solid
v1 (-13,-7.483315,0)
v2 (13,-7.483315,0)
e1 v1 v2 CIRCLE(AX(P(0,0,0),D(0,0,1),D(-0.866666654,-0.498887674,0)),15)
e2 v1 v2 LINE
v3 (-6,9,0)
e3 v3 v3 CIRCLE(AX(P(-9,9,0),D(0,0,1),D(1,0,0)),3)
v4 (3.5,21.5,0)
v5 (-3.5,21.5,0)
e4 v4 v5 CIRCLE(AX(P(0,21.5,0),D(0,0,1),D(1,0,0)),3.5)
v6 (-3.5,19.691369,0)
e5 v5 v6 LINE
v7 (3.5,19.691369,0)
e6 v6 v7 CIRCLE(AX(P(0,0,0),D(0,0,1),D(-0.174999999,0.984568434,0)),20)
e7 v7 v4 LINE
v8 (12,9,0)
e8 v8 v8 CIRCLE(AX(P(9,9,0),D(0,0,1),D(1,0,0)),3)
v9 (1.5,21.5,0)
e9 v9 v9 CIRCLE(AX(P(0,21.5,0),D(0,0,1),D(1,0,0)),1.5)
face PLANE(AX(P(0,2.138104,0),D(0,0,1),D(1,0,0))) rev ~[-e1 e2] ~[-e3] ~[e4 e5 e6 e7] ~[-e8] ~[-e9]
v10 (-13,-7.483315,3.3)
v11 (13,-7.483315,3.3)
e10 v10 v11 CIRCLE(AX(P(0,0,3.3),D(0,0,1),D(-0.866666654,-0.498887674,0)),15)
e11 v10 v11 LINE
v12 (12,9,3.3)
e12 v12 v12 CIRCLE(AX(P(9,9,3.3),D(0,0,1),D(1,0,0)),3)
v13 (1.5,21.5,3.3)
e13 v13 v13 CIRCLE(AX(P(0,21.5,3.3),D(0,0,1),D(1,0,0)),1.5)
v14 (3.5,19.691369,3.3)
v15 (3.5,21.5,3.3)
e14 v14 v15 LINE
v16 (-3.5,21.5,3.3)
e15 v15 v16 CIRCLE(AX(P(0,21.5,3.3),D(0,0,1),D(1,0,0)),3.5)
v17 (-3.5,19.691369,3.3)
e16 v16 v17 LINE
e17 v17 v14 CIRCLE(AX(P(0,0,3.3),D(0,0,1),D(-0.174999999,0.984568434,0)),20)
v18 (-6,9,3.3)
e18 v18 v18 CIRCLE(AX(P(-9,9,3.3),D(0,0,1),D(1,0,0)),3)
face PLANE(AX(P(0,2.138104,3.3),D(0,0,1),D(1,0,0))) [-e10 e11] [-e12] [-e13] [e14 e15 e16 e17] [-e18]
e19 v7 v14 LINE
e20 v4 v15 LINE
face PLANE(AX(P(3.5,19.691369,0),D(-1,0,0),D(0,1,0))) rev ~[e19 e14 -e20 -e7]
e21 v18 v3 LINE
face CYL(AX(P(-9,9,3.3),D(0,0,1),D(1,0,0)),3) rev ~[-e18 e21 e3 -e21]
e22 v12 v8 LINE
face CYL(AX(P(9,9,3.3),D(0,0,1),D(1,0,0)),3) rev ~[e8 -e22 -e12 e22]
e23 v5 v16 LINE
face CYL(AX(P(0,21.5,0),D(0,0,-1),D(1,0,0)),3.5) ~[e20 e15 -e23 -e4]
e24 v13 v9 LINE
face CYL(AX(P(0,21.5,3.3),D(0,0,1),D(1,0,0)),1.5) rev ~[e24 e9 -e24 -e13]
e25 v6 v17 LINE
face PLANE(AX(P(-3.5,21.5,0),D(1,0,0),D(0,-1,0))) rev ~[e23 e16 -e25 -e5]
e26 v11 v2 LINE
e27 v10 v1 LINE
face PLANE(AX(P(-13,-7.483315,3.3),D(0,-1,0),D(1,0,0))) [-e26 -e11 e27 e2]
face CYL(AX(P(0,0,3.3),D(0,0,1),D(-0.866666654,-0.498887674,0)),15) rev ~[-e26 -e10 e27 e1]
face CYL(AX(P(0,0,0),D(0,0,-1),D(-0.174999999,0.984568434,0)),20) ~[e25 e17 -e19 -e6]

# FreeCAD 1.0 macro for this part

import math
import FreeCAD as App
import Part
import Sketcher
from FreeCAD import Vector

doc = App.newDocument("Part")
body = doc.addObject("PartDesign::Body", "Body")

sketch1 = body.newObject("Sketcher::SketchObject", "Sketch")
sketch1.AttachmentSupport = (doc.getObject("XY_Plane"), [""])
sketch1.MapMode = "FlatFace"
sketch1.addGeometry([
    Part.ArcOfCircle(Part.Circle(Vector(0, 21.5, 0), Vector(0, 0, 1), 3.5), math.radians(0), math.radians(180)),
    Part.LineSegment(Vector(-3.5, 21.5, 0), Vector(-3.5, 19.7, 0)),
    Part.ArcOfCircle(Part.Circle(Vector(0, 0, 0), Vector(0, 0, 1), 20), math.radians(100), math.radians(440)),
    Part.LineSegment(Vector(3.5, 19.7, 0), Vector(3.5, 21.5, 0)),
], False)
sketch1.addConstraint([
    Sketcher.Constraint("Tangent", 0, 2, 1, 1),
    Sketcher.Constraint("Coincident", 1, 2, 2, 1),
    Sketcher.Constraint("Coincident", 2, 2, 3, 1),
    Sketcher.Constraint("Tangent", 3, 2, 0, 1),
    Sketcher.Constraint("Vertical", 1),
    Sketcher.Constraint("Vertical", 3),
    Sketcher.Constraint("Coincident", 2, 3, -1, 1),
    Sketcher.Constraint("PointOnObject", 0, 3, -2),
    Sketcher.Constraint("Radius", 2, 20.0),
    Sketcher.Constraint("Radius", 0, 3.5),
    Sketcher.Constraint("DistanceY", -1, 1, 0, 3, 21.5),
])
pad1 = body.newObject("PartDesign::Pad", "Pad")
pad1.Profile = sketch1
pad1.Length = 3.3

sketch2 = body.newObject("Sketcher::SketchObject", "Sketch001")
sketch2.AttachmentSupport = (doc.getObject("XY_Plane"), [""])
sketch2.MapMode = "FlatFace"
sketch2.AttachmentOffset = App.Placement(Vector(0, 0, 3.3), App.Rotation())
sketch2.addGeometry(Part.Circle(Vector(0, 21.5, 0), Vector(0, 0, 1), 1.5), False)
sketch2.addConstraint([
    Sketcher.Constraint("PointOnObject", 0, 3, -2),
    Sketcher.Constraint("Diameter", 0, 3.0),
    Sketcher.Constraint("DistanceY", -1, 1, 0, 3, 21.5),
])
pocket1 = body.newObject("PartDesign::Pocket", "Pocket")
pocket1.Profile = sketch2
pocket1.Type = "ThroughAll"

sketch3 = body.newObject("Sketcher::SketchObject", "Sketch002")
sketch3.AttachmentSupport = (doc.getObject("XY_Plane"), [""])
sketch3.MapMode = "FlatFace"
sketch3.AttachmentOffset = App.Placement(Vector(0, 0, 3.3), App.Rotation())
sketch3.addGeometry([
    Part.Circle(Vector(-9, 9, 0), Vector(0, 0, 1), 3),
    Part.Circle(Vector(9, 9, 0), Vector(0, 0, 1), 3),
    Part.LineSegment(Vector(13, -7.5, 0), Vector(-13, -7.5, 0)),
    Part.ArcOfCircle(Part.Circle(Vector(0, 0, 0), Vector(0, 0, 1), 15), math.radians(-150), math.radians(-30)),
], False)
sketch3.addConstraint([
    Sketcher.Constraint("Coincident", 2, 1, 3, 2),
    Sketcher.Constraint("Coincident", 3, 1, 2, 2),
    Sketcher.Constraint("Horizontal", 2),
    Sketcher.Constraint("Coincident", 3, 3, -1, 1),
    Sketcher.Constraint("Equal", 0, 1),
    Sketcher.Constraint("Symmetric", 0, 3, 1, 3, -2),
    Sketcher.Constraint("Diameter", 0, 6.0),
    Sketcher.Constraint("Radius", 3, 15.0),
    Sketcher.Constraint("DistanceX", 2, 2, 2, 1, 26.0),
    Sketcher.Constraint("DistanceX", 0, 3, -1, 1, 9.0),
    Sketcher.Constraint("DistanceY", -1, 1, 0, 3, 9.0),
])
pocket2 = body.newObject("PartDesign::Pocket", "Pocket001")
pocket2.Profile = sketch3
pocket2.Length = 5

doc.recompute()
